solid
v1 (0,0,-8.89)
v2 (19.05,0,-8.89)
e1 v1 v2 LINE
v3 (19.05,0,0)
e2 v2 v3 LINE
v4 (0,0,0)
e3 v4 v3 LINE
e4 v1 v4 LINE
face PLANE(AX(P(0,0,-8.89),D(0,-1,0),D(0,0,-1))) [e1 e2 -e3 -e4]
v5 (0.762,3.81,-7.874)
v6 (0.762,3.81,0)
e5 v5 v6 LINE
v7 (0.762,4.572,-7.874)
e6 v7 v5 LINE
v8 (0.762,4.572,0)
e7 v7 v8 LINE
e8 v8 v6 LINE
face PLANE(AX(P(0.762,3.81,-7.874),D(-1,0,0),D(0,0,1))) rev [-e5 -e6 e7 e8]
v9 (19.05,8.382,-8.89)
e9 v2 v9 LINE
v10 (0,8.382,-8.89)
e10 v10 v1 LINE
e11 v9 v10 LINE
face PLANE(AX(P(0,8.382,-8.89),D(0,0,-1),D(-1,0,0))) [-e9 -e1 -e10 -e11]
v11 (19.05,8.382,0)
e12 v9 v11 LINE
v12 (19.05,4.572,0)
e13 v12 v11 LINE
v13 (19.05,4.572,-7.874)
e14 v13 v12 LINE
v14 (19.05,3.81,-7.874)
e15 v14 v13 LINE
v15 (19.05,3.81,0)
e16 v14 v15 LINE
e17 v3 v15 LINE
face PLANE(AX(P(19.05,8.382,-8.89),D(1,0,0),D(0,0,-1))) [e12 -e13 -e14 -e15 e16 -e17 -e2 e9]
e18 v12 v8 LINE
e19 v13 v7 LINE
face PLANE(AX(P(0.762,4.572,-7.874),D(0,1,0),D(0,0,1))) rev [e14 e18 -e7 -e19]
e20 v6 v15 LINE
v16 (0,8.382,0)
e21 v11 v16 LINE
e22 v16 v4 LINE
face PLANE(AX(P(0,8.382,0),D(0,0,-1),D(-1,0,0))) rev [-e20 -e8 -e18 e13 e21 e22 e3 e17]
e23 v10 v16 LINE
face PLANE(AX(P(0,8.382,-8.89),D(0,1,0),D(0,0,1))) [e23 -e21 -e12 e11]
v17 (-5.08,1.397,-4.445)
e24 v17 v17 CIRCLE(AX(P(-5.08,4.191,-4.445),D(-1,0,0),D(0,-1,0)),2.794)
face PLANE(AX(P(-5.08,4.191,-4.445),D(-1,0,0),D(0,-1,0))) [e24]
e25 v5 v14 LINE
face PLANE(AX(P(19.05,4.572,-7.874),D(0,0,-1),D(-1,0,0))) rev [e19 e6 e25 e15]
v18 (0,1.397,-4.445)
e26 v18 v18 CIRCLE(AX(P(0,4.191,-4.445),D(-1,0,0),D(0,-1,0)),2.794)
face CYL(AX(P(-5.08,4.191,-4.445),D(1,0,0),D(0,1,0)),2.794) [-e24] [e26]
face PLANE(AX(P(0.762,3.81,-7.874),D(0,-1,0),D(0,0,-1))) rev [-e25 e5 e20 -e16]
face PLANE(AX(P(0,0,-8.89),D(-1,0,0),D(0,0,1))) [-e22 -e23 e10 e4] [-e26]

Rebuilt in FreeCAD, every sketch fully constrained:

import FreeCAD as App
import Part
import Sketcher
Q = App.Units.Quantity

doc = App.newDocument("Part")
body = doc.addObject("PartDesign::Body", "Body")

sketch1 = doc.addObject("Sketcher::SketchObject", "Sketch")
body.addObject(sketch1)
sketch1.AttachmentSupport = (doc.XY_Plane, [""])
sketch1.MapMode = "FlatFace"
sketch1.addGeometry([
    Part.LineSegment(App.Vector(0, 8.382, 0), App.Vector(0, 0, 0)),
    Part.LineSegment(App.Vector(0, 0, 0), App.Vector(19.05, 0, 0)),
    Part.LineSegment(App.Vector(19.05, 0, 0), App.Vector(19.05, 8.382, 0)),
    Part.LineSegment(App.Vector(19.05, 8.382, 0), App.Vector(0, 8.382, 0)),
], False)
sketch1.addConstraint([
    Sketcher.Constraint("Coincident", 0, 2, 1, 1),
    Sketcher.Constraint("Coincident", 1, 2, 2, 1),
    Sketcher.Constraint("Coincident", 2, 2, 3, 1),
    Sketcher.Constraint("Coincident", 3, 2, 0, 1),
    Sketcher.Constraint("Vertical", 0),
    Sketcher.Constraint("Horizontal", 1),
    Sketcher.Constraint("Vertical", 2),
    Sketcher.Constraint("Horizontal", 3),
    Sketcher.Constraint("Coincident", 0, 2, -1, 1),
    Sketcher.Constraint("DistanceX", 1, 1, 1, 2, Q("0.75 in")),
    Sketcher.Constraint("DistanceY", 0, 2, 0, 1, Q("0.33 in")),
])
pad1 = doc.addObject("PartDesign::Pad", "Pad")
body.addObject(pad1)
pad1.Profile = sketch1
pad1.Length = Q("0.35 in")
pad1.Reversed = True

sketch2 = doc.addObject("Sketcher::SketchObject", "Sketch001")
body.addObject(sketch2)
sketch2.AttachmentSupport = (doc.XY_Plane, [""])
sketch2.MapMode = "FlatFace"
sketch2.addGeometry([
    Part.LineSegment(App.Vector(0.762, 4.572, 0), App.Vector(0.762, 3.81, 0)),
    Part.LineSegment(App.Vector(0.762, 3.81, 0), App.Vector(19.05, 3.81, 0)),
    Part.LineSegment(App.Vector(19.05, 3.81, 0), App.Vector(19.05, 4.572, 0)),
    Part.LineSegment(App.Vector(19.05, 4.572, 0), App.Vector(0.762, 4.572, 0)),
], False)
sketch2.addConstraint([
    Sketcher.Constraint("Coincident", 0, 2, 1, 1),
    Sketcher.Constraint("Coincident", 1, 2, 2, 1),
    Sketcher.Constraint("Coincident", 2, 2, 3, 1),
    Sketcher.Constraint("Coincident", 3, 2, 0, 1),
    Sketcher.Constraint("Vertical", 0),
    Sketcher.Constraint("Horizontal", 1),
    Sketcher.Constraint("Vertical", 2),
    Sketcher.Constraint("Horizontal", 3),
    Sketcher.Constraint("DistanceX", 1, 1, 1, 2, Q("0.72 in")),
    Sketcher.Constraint("DistanceY", 0, 2, 0, 1, Q("0.03 in")),
    Sketcher.Constraint("DistanceX", -1, 1, 0, 2, Q("0.03 in")),
    Sketcher.Constraint("DistanceY", -1, 1, 0, 2, Q("0.15 in")),
])
pocket1 = doc.addObject("PartDesign::Pocket", "Pocket")
body.addObject(pocket1)
pocket1.Profile = sketch2
pocket1.Length = Q("0.31 in")

sketch3 = doc.addObject("Sketcher::SketchObject", "Sketch002")
body.addObject(sketch3)
sketch3.AttachmentSupport = (doc.YZ_Plane, [""])
sketch3.MapMode = "FlatFace"
sketch3.addGeometry(Part.Circle(App.Vector(4.191, -4.445, 0), App.Vector(0, 0, 1), 2.794), False)
sketch3.addConstraint([
    Sketcher.Constraint("Diameter", 0, Q("0.22 in")),
    Sketcher.Constraint("DistanceX", -1, 1, 0, 3, Q("0.165 in")),
    Sketcher.Constraint("DistanceY", 0, 3, -1, 1, Q("0.175 in")),
])
pad2 = doc.addObject("PartDesign::Pad", "Pad001")
body.addObject(pad2)
pad2.Profile = sketch3
pad2.Length = Q("0.2 in")
pad2.Reversed = True

doc.recompute()
